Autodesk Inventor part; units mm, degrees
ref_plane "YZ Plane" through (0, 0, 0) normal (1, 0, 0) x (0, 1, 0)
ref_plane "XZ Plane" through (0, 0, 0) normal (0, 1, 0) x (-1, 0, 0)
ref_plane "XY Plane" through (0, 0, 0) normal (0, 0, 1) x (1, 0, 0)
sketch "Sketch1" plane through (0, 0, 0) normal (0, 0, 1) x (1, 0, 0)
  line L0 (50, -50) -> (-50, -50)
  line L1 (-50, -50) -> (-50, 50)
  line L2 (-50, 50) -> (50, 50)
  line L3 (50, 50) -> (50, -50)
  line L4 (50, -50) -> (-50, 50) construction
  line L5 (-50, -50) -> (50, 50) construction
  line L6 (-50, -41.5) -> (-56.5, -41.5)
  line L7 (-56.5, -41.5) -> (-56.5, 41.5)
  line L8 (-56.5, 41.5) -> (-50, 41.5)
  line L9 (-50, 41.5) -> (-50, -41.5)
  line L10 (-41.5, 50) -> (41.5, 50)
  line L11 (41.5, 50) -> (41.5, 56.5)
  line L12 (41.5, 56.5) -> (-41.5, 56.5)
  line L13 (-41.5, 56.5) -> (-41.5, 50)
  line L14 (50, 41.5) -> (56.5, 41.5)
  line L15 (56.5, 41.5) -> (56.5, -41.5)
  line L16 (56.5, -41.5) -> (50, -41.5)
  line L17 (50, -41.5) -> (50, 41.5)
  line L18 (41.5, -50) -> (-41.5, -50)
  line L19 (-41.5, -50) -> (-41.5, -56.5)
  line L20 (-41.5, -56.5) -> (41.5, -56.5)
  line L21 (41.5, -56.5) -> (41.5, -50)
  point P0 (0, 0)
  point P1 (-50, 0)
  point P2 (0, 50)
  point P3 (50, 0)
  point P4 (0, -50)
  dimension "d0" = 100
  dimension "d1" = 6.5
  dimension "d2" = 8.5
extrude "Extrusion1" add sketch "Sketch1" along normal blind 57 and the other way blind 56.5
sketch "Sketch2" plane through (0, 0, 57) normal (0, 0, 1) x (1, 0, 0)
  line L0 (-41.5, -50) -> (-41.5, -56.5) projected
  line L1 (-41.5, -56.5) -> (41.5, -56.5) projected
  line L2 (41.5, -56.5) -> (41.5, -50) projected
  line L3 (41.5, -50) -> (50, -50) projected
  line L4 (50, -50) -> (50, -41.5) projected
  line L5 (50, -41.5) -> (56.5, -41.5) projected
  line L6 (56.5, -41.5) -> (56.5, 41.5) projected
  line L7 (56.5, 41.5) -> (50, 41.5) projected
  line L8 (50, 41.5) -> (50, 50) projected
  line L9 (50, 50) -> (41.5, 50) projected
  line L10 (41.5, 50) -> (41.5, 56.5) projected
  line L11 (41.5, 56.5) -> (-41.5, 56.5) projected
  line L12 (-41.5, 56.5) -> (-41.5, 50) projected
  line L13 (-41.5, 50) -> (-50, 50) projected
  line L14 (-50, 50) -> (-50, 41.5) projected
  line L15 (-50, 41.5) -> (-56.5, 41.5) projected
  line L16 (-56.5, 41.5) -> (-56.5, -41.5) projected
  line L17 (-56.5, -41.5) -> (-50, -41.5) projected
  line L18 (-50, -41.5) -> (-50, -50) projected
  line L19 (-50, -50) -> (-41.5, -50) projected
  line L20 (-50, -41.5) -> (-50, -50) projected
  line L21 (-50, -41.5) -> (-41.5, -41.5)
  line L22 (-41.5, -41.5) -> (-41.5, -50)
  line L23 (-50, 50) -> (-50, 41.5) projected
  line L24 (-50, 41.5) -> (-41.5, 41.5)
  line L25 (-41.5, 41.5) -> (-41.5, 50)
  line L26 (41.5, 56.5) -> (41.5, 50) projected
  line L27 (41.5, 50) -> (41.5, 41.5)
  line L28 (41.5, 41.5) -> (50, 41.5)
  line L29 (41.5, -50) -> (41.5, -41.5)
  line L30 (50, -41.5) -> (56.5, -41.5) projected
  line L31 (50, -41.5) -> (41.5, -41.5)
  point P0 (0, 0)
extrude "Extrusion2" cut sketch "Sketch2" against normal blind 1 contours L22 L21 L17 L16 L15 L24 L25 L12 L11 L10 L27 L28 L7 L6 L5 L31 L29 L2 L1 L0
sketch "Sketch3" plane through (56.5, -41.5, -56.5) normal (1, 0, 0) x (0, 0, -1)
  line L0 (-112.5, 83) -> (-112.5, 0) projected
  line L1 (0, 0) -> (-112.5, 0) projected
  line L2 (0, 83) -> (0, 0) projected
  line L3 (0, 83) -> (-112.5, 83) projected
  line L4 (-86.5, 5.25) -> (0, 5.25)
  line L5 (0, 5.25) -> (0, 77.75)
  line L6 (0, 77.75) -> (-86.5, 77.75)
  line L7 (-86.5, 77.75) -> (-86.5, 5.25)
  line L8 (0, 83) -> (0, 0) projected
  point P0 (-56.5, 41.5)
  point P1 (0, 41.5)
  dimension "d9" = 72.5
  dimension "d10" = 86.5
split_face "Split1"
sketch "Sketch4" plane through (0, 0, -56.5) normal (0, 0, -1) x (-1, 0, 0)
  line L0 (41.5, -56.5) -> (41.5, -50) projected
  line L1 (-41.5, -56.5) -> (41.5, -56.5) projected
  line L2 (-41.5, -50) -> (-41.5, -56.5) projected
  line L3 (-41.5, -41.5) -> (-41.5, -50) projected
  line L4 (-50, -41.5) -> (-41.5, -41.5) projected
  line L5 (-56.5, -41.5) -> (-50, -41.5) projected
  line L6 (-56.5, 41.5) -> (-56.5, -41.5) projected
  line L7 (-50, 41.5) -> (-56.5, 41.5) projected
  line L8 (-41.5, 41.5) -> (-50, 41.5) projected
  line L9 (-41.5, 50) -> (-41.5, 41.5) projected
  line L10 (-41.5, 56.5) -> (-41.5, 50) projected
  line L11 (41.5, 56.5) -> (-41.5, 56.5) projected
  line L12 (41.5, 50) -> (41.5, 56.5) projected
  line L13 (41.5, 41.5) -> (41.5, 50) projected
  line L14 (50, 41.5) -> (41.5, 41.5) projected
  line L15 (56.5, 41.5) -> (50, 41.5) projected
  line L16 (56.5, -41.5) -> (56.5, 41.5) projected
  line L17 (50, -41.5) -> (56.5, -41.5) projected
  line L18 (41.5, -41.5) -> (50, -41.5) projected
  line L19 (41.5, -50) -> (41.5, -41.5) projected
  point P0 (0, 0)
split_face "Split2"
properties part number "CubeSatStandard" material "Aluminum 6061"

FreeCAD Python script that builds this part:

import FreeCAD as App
import Part
import Sketcher
from FreeCAD import Vector


def add_polygon(sketch, points):
    """Adds a closed chain of lines whose ends are joined by coincident constraints."""
    first, n = sketch.GeometryCount, len(points)
    for a, b in zip(points, points[1:] + points[:1]):
        sketch.addGeometry(Part.LineSegment(App.Vector(*a, 0), App.Vector(*b, 0)), False)
    for i in range(n):
        sketch.addConstraint(Sketcher.Constraint("Coincident", first + i, 2, first + (i + 1) % n, 1))

doc = App.newDocument("Part")
params = doc.addObject("Spreadsheet::Sheet", "Params")
for row, (alias, value) in enumerate([
    ("sketch1_width", "8.5 mm"),
    ("sketch1_width2", "6.5 mm"),
    ("pad1_length", "57 mm"),
    ("pad1_length2", "56.5 mm"),
    ("sketch2_width", "83 mm"),
    ("sketch2_width2", "15 mm"),
    ("pocket1_length", "1 mm"),
], start=1):
    params.set(f"A{row}", alias)
    params.set(f"B{row}", "=" + value)
    params.setAlias(f"B{row}", alias)

body = doc.addObject("PartDesign::Body", "Body")

sketch1 = doc.addObject("Sketcher::SketchObject", "Sketch")
body.addObject(sketch1)
sketch1.AttachmentSupport = (doc.XY_Plane, [""])
sketch1.MapMode = "FlatFace"
add_polygon(sketch1, [(42, -50), (50, -50), (50, -42), (56, -42), (56, 42), (50, 42), (50, 50), (42, 50), (42, 56), (-42, 56), (-42, 50), (-50, 50), (-50, 42), (-56, 42), (-56, -42), (-50, -42), (-50, -50), (-42, -50), (-42, -56), (42, -56)])
sketch1.addConstraint(Sketcher.Constraint("Horizontal", 0))
sketch1.addConstraint(Sketcher.Constraint("Vertical", 1))
sketch1.addConstraint(Sketcher.Constraint("Horizontal", 2))
sketch1.addConstraint(Sketcher.Constraint("Vertical", 3))
sketch1.addConstraint(Sketcher.Constraint("Horizontal", 4))
sketch1.addConstraint(Sketcher.Constraint("Vertical", 5))
sketch1.addConstraint(Sketcher.Constraint("Horizontal", 6))
sketch1.addConstraint(Sketcher.Constraint("Vertical", 7))
sketch1.addConstraint(Sketcher.Constraint("Horizontal", 8))
sketch1.addConstraint(Sketcher.Constraint("Vertical", 9))
sketch1.addConstraint(Sketcher.Constraint("Horizontal", 10))
sketch1.addConstraint(Sketcher.Constraint("Vertical", 11))
sketch1.addConstraint(Sketcher.Constraint("Horizontal", 12))
sketch1.addConstraint(Sketcher.Constraint("Vertical", 13))
sketch1.addConstraint(Sketcher.Constraint("Horizontal", 14))
sketch1.addConstraint(Sketcher.Constraint("Vertical", 15))
sketch1.addConstraint(Sketcher.Constraint("Horizontal", 16))
sketch1.addConstraint(Sketcher.Constraint("Vertical", 17))
sketch1.addConstraint(Sketcher.Constraint("Horizontal", 18))
sketch1.addConstraint(Sketcher.Constraint("Vertical", 19))
sketch1.addConstraint(Sketcher.Constraint("Symmetric", 0, 2, 10, 2, -1, 1))
sketch1.addConstraint(Sketcher.Constraint("Symmetric", 2, 2, 12, 2, -1, 1))
sketch1.addConstraint(Sketcher.Constraint("Symmetric", 4, 2, 14, 2, -1, 1))
sketch1.addConstraint(Sketcher.Constraint("Symmetric", 6, 2, 16, 2, -1, 1))
sketch1.addConstraint(Sketcher.Constraint("Symmetric", 8, 2, 18, 2, -1, 1))
sketch1.addConstraint(Sketcher.Constraint("Symmetric", 6, 2, 9, 2, -2))
sketch1.addConstraint(Sketcher.Constraint("Symmetric", 4, 2, 11, 2, -2))
sketch1.addConstraint(Sketcher.Constraint("Equal", 16, 1))
sketch1.addConstraint(Sketcher.Constraint("Equal", 18, 3))
sketch1.addConstraint(Sketcher.Constraint("Equal", 14, 7))
sketch1.addConstraint(Sketcher.Constraint("DistanceX", 0, 1, 0, 2, 8.5))
sketch1.addConstraint(Sketcher.Constraint("DistanceX", 2, 1, 2, 2, 6.5))
sketch1.addConstraint(Sketcher.Constraint("DistanceY", 0, 2, 5, 2, 100.0))
sketch1.setExpression("Constraints[50]", "Params.sketch1_width")
sketch1.setExpression("Constraints[51]", "Params.sketch1_width2")
pad1 = doc.addObject("PartDesign::Pad", "Pad")
body.addObject(pad1)
pad1.Profile = sketch1
pad1.Type = "TwoLengths"
pad1.setExpression("Length", "Params.pad1_length")
pad1.setExpression("Length2", "Params.pad1_length2")

sketch2 = doc.addObject("Sketcher::SketchObject", "Sketch001")
body.addObject(sketch2)
sketch2.AttachmentSupport = (doc.XY_Plane, [""])
sketch2.MapMode = "FlatFace"
sketch2.AttachmentOffset = App.Placement(Vector(0, 0, 57), App.Rotation())
add_polygon(sketch2, [(-42, -42), (-42, -56), (42, -56), (42, -42), (56, -42), (56, 42), (42, 42), (42, 56), (-42, 56), (-42, 42), (-56, 42), (-56, -42)])
sketch2.addConstraint(Sketcher.Constraint("Vertical", 0))
sketch2.addConstraint(Sketcher.Constraint("Horizontal", 1))
sketch2.addConstraint(Sketcher.Constraint("Vertical", 2))
sketch2.addConstraint(Sketcher.Constraint("Horizontal", 3))
sketch2.addConstraint(Sketcher.Constraint("Vertical", 4))
sketch2.addConstraint(Sketcher.Constraint("Horizontal", 5))
sketch2.addConstraint(Sketcher.Constraint("Vertical", 6))
sketch2.addConstraint(Sketcher.Constraint("Horizontal", 7))
sketch2.addConstraint(Sketcher.Constraint("Vertical", 8))
sketch2.addConstraint(Sketcher.Constraint("Horizontal", 9))
sketch2.addConstraint(Sketcher.Constraint("Vertical", 10))
sketch2.addConstraint(Sketcher.Constraint("Horizontal", 11))
sketch2.addConstraint(Sketcher.Constraint("Symmetric", 0, 2, 6, 2, -1, 1))
sketch2.addConstraint(Sketcher.Constraint("Symmetric", 2, 2, 8, 2, -1, 1))
sketch2.addConstraint(Sketcher.Constraint("Symmetric", 4, 2, 10, 2, -1, 1))
sketch2.addConstraint(Sketcher.Constraint("Symmetric", 5, 2, 8, 2, -2))
sketch2.addConstraint(Sketcher.Constraint("Equal", 11, 0))
sketch2.addConstraint(Sketcher.Constraint("Equal", 7, 4))
sketch2.addConstraint(Sketcher.Constraint("DistanceX", 1, 1, 1, 2, 83.0))
sketch2.addConstraint(Sketcher.Constraint("DistanceX", 3, 1, 3, 2, 15.0))
sketch2.setExpression("Constraints[30]", "Params.sketch2_width")
sketch2.setExpression("Constraints[31]", "Params.sketch2_width2")
pocket1 = doc.addObject("PartDesign::Pocket", "Pocket")
body.addObject(pocket1)
pocket1.Profile = sketch2
pocket1.setExpression("Length", "Params.pocket1_length")

doc.recompute()
